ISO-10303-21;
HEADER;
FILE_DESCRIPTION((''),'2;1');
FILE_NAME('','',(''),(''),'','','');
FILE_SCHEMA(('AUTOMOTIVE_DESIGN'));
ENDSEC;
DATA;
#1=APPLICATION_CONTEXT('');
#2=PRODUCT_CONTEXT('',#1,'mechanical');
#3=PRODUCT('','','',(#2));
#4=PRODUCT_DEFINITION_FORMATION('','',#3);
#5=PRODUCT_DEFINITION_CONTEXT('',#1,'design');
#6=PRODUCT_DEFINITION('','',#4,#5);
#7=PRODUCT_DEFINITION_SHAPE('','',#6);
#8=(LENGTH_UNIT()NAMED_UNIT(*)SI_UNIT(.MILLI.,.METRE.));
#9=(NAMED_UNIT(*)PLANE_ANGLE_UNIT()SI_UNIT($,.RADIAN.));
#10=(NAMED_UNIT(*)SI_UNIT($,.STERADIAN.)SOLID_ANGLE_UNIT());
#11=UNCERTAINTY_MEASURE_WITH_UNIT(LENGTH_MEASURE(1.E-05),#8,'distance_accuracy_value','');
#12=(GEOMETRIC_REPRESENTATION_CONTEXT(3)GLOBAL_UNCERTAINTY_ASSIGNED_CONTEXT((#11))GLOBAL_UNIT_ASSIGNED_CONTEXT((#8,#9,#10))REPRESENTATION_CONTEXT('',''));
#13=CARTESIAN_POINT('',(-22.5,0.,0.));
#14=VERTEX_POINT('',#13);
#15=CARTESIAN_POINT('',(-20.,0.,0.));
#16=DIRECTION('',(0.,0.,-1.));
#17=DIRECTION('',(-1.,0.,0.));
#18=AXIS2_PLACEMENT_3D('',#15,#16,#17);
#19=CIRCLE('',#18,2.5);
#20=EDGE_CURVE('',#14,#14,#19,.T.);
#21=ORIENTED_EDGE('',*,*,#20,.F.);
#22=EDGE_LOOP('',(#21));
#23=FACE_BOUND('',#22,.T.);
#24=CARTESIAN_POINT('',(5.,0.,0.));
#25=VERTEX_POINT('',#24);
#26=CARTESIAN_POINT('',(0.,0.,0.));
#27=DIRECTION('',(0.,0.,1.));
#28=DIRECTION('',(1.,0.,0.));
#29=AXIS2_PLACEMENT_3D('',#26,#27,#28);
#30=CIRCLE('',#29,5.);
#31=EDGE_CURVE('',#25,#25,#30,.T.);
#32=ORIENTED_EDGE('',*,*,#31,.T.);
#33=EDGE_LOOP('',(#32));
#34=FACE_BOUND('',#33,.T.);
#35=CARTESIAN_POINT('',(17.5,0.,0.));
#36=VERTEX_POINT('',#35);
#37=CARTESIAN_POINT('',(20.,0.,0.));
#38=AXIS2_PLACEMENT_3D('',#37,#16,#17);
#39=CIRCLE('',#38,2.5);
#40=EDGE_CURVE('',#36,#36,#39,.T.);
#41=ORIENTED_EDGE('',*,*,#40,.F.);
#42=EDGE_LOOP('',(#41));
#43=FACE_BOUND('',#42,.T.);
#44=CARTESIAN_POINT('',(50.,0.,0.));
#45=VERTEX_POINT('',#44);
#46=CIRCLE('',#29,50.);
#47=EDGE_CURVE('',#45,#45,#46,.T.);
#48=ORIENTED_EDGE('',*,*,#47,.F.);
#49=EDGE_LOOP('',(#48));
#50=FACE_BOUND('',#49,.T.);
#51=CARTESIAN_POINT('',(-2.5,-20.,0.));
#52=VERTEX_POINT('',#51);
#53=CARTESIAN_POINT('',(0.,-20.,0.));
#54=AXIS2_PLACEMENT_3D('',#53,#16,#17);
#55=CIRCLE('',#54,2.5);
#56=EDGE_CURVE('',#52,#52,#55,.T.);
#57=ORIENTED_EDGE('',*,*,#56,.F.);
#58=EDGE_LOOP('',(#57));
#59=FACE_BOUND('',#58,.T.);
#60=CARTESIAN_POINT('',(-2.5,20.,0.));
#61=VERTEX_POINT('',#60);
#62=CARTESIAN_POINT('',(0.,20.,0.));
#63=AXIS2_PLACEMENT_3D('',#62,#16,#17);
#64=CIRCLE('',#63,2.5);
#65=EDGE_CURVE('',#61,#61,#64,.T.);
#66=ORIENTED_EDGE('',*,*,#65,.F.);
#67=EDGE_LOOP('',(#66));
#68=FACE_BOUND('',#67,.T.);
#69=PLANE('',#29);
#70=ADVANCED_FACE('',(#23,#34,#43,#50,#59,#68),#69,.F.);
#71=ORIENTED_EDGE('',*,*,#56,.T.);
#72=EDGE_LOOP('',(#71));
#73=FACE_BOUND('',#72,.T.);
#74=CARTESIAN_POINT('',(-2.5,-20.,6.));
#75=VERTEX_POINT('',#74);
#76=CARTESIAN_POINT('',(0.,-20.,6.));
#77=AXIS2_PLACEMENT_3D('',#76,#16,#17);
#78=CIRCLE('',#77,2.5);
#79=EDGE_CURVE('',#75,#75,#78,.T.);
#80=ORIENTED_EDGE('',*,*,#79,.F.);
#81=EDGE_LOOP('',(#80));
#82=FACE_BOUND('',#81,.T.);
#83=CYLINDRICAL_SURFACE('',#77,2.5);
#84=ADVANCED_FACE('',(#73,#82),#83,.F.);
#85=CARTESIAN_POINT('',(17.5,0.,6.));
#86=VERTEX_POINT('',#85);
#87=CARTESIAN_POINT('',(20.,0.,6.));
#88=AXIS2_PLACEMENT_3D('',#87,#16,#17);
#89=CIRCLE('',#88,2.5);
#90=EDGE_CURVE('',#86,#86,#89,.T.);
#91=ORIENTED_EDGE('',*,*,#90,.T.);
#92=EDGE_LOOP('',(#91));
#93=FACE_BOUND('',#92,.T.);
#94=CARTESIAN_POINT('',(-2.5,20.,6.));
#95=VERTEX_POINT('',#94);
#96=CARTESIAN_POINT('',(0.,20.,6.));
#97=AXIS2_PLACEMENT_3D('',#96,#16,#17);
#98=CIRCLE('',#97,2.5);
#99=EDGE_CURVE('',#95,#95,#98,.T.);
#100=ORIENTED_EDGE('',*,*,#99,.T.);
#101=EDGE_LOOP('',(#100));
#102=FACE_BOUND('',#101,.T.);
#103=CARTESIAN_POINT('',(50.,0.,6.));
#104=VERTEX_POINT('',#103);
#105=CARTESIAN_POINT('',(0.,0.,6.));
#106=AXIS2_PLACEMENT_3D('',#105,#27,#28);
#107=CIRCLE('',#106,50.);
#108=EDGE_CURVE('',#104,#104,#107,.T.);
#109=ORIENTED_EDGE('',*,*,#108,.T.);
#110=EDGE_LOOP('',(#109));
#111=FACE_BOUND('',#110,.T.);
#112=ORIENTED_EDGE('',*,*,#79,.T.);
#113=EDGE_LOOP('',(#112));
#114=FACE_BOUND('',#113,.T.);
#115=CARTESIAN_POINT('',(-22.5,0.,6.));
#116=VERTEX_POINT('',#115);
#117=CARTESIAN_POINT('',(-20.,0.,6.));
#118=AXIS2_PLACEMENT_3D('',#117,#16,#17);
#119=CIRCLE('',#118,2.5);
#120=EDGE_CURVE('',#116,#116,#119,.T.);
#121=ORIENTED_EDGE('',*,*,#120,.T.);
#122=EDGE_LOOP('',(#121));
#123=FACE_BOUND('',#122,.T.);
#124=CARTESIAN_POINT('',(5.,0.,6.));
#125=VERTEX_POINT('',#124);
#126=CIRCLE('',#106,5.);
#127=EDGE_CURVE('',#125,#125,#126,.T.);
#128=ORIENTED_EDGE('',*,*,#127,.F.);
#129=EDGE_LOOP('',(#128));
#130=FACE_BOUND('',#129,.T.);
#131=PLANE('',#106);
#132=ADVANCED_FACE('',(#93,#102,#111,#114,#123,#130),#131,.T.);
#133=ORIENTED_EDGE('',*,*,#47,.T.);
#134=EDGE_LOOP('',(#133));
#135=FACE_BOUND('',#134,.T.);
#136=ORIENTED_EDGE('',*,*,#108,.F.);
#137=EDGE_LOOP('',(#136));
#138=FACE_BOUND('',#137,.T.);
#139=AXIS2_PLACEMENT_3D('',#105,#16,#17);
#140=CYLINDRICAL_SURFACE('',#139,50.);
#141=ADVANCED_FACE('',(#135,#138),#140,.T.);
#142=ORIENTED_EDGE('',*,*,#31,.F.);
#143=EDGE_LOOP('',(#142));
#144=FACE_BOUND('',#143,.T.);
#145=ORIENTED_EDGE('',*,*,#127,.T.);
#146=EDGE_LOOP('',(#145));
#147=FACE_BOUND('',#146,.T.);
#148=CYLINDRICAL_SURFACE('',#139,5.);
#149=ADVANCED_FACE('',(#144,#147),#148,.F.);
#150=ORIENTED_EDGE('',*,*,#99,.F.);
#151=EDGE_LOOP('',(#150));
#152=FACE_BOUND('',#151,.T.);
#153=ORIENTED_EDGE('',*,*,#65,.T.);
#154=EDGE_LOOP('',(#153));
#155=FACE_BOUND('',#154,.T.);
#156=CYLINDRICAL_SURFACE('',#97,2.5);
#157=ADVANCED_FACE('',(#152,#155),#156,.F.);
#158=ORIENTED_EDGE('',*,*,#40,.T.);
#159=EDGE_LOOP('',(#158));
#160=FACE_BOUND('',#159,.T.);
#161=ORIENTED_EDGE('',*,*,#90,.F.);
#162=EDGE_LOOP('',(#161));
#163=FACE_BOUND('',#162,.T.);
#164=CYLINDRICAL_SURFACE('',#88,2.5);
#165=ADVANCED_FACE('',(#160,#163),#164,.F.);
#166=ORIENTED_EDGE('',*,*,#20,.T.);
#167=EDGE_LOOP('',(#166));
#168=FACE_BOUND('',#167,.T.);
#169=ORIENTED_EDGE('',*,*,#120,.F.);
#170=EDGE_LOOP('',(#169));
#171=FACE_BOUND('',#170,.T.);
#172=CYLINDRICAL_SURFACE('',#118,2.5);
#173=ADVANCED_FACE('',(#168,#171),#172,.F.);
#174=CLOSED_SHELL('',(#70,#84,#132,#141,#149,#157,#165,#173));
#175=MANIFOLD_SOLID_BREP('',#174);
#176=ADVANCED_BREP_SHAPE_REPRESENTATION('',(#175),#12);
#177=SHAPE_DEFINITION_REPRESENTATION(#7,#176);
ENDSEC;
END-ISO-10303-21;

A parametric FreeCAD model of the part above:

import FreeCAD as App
import Part
import Sketcher
from FreeCAD import Vector
Q = App.Units.Quantity

doc = App.newDocument("Part")
params = doc.addObject("Spreadsheet::Sheet", "Params")
for row, (alias, value) in enumerate([
    ("sketch1_diameter", "100 mm"),
    ("sketch1_diameter2", "10 mm"),
    ("pad1_length", "6 mm"),
    ("sketch2_diameter", "5 mm"),
], start=1):
    params.set(f"A{row}", alias)
    params.set(f"B{row}", "=" + value)
    params.setAlias(f"B{row}", alias)

body = doc.addObject("PartDesign::Body", "Body")

sketch1 = body.newObject("Sketcher::SketchObject", "Sketch")
sketch1.AttachmentSupport = (doc.getObject("XY_Plane"), [""])
sketch1.MapMode = "FlatFace"
sketch1.addGeometry([
    Part.Circle(Vector(0, 0, 0), Vector(0, 0, 1), 50),
    Part.Circle(Vector(0, 0, 0), Vector(0, 0, 1), 5),
], False)
sketch1.addConstraint([
    Sketcher.Constraint("Coincident", 0, 3, -1, 1),
    Sketcher.Constraint("Coincident", 1, 3, -1, 1),
    Sketcher.Constraint("Diameter", 0, Q("100 mm")),
    Sketcher.Constraint("Diameter", 1, Q("10 mm")),
])
sketch1.setExpression("Constraints[2]", "Params.sketch1_diameter")
sketch1.setExpression("Constraints[3]", "Params.sketch1_diameter2")
pad1 = body.newObject("PartDesign::Pad", "Pad")
pad1.Profile = sketch1
pad1.setExpression("Length", "Params.pad1_length")

sketch2 = body.newObject("Sketcher::SketchObject", "Sketch001")
sketch2.AttachmentSupport = (doc.getObject("XY_Plane"), [""])
sketch2.MapMode = "FlatFace"
sketch2.addGeometry([
    Part.Circle(Vector(0, 20, 0), Vector(0, 0, 1), 2.5),
    Part.Circle(Vector(-20, 0, 0), Vector(0, 0, 1), 2.5),
    Part.Circle(Vector(0, -20, 0), Vector(0, 0, 1), 2.5),
    Part.Circle(Vector(20, 0, 0), Vector(0, 0, 1), 2.5),
], False)
sketch2.addConstraint([
    Sketcher.Constraint("Equal", 0, 1),
    Sketcher.Constraint("Equal", 1, 2),
    Sketcher.Constraint("Equal", 2, 3),
    Sketcher.Constraint("Symmetric", 0, 3, 2, 3, -1, 1),
    Sketcher.Constraint("Symmetric", 1, 3, 3, 3, -1, 1),
    Sketcher.Constraint("PointOnObject", 0, 3, -2),
    Sketcher.Constraint("PointOnObject", 1, 3, -1),
    Sketcher.Constraint("Diameter", 0, Q("5 mm")),
    Sketcher.Constraint("DistanceY", -1, 1, 0, 3, Q("20 mm")),
    Sketcher.Constraint("DistanceX", 1, 3, -1, 1, Q("20 mm")),
])
sketch2.setExpression("Constraints[7]", "Params.sketch2_diameter")
pocket1 = body.newObject("PartDesign::Pocket", "Pocket")
pocket1.Profile = sketch2
pocket1.Type = "ThroughAll"
pocket1.Reversed = True

doc.recompute()
